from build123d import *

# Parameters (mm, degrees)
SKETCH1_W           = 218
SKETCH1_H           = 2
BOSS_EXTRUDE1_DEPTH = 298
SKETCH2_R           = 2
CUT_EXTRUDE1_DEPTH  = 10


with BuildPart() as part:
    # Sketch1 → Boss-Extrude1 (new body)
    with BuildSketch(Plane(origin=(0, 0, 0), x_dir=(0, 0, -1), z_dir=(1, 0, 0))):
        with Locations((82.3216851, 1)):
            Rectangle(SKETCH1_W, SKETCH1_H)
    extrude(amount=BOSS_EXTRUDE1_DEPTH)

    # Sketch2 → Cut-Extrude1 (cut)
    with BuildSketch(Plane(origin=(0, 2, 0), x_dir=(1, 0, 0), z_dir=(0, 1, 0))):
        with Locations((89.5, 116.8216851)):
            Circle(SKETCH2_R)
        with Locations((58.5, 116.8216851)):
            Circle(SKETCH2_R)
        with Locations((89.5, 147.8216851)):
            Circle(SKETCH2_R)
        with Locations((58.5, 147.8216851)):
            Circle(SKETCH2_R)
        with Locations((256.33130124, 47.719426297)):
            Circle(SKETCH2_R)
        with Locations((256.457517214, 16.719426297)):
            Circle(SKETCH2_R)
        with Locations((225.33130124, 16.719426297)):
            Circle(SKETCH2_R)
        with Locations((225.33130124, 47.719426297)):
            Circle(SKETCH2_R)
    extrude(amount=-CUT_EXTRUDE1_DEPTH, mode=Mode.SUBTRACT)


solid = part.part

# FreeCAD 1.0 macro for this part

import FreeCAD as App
import Part
import Sketcher
from FreeCAD import Vector
Q = App.Units.Quantity


def add_polygon(sketch, points):
    """Adds a closed chain of lines whose ends are joined by coincident constraints."""
    first, n = sketch.GeometryCount, len(points)
    for a, b in zip(points, points[1:] + points[:1]):
        sketch.addGeometry(Part.LineSegment(App.Vector(*a, 0), App.Vector(*b, 0)), False)
    for i in range(n):
        sketch.addConstraint(Sketcher.Constraint("Coincident", first + i, 2, first + (i + 1) % n, 1))

doc = App.newDocument("Part")
params = doc.addObject("Spreadsheet::Sheet", "Params")
for row, (alias, value) in enumerate([
    ("sketch1_width", "2 mm"),
    ("sketch1_height", "218 mm"),
    ("pad1_length", "298 mm"),
    ("sketch2_diameter", "4 mm"),
    ("pocket1_length", "10 mm"),
], start=1):
    params.set(f"A{row}", alias)
    params.set(f"B{row}", "=" + value)
    params.setAlias(f"B{row}", alias)

body = doc.addObject("PartDesign::Body", "Body")

sketch1 = body.newObject("Sketcher::SketchObject", "Sketch")
sketch1.AttachmentSupport = (doc.getObject("YZ_Plane"), [""])
sketch1.MapMode = "FlatFace"
add_polygon(sketch1, [(2, 26.7), (0, 26.7), (0, -191.3), (2, -191.3)])
sketch1.addConstraint([
    Sketcher.Constraint("Horizontal", 0),
    Sketcher.Constraint("Vertical", 1),
    Sketcher.Constraint("Horizontal", 2),
    Sketcher.Constraint("Vertical", 3),
    Sketcher.Constraint("PointOnObject", 0, 2, -2),
    Sketcher.Constraint("DistanceX", 0, 2, 0, 1, Q("2 mm")),
    Sketcher.Constraint("DistanceY", 1, 2, 1, 1, Q("218 mm")),
    Sketcher.Constraint("DistanceY", -1, 1, 0, 2, Q("26.678315 mm")),
])
sketch1.setExpression("Constraints[9]", "Params.sketch1_width")
sketch1.setExpression("Constraints[10]", "Params.sketch1_height")
pad1 = body.newObject("PartDesign::Pad", "Pad")
pad1.Profile = sketch1
pad1.setExpression("Length", "Params.pad1_length")

sketch2 = body.newObject("Sketcher::SketchObject", "Sketch001")
sketch2.AttachmentSupport = (doc.getObject("XZ_Plane"), [""])
sketch2.MapMode = "FlatFace"
sketch2.AttachmentOffset = App.Placement(Vector(0, 0, -2), App.Rotation())
sketch2.addGeometry([
    Part.Circle(Vector(89.5, -116.8, 0), Vector(0, 0, 1), 2),
    Part.Circle(Vector(58.5, -116.8, 0), Vector(0, 0, 1), 2),
    Part.Circle(Vector(89.5, -147.8, 0), Vector(0, 0, 1), 2),
    Part.Circle(Vector(58.5, -147.8, 0), Vector(0, 0, 1), 2),
    Part.Circle(Vector(256.3, -47.7, 0), Vector(0, 0, 1), 2),
    Part.Circle(Vector(256.5, -16.7, 0), Vector(0, 0, 1), 2),
    Part.Circle(Vector(225.3, -16.7, 0), Vector(0, 0, 1), 2),
    Part.Circle(Vector(225.3, -47.7, 0), Vector(0, 0, 1), 2),
], False)
sketch2.addConstraint([
    Sketcher.Constraint("Equal", 0, 1),
    Sketcher.Constraint("Equal", 1, 2),
    Sketcher.Constraint("Equal", 2, 3),
    Sketcher.Constraint("Equal", 3, 4),
    Sketcher.Constraint("Equal", 4, 5),
    Sketcher.Constraint("Equal", 5, 6),
    Sketcher.Constraint("Equal", 6, 7),
    Sketcher.Constraint("Horizontal", 0, 3, 1, 3),
    Sketcher.Constraint("Horizontal", 2, 3, 3, 3),
    Sketcher.Constraint("Horizontal", 5, 3, 6, 3),
    Sketcher.Constraint("Horizontal", 4, 3, 7, 3),
    Sketcher.Constraint("Vertical", 0, 3, 2, 3),
    Sketcher.Constraint("Vertical", 1, 3, 3, 3),
    Sketcher.Constraint("Vertical", 6, 3, 7, 3),
    Sketcher.Constraint("Diameter", 0, Q("4 mm")),
    Sketcher.Constraint("DistanceX", 1, 3, 0, 3, Q("31 mm")),
    Sketcher.Constraint("DistanceY", 2, 3, 0, 3, Q("31 mm")),
    Sketcher.Constraint("DistanceY", 4, 3, 5, 3, Q("31 mm")),
    Sketcher.Constraint("DistanceX", 6, 3, 4, 3, Q("31 mm")),
    Sketcher.Constraint("DistanceX", -1, 1, 0, 3, Q("89.5 mm")),
    Sketcher.Constraint("DistanceX", -1, 1, 4, 3, Q("256.331301 mm")),
    Sketcher.Constraint("DistanceY", 0, 3, 4, 3, Q("69.102259 mm")),
    Sketcher.Constraint("DistanceY", 0, 3, -1, 1, Q("116.821685 mm")),
    Sketcher.Constraint("DistanceX", -1, 1, 5, 3, Q("256.457517 mm")),
])
sketch2.setExpression("Constraints[14]", "Params.sketch2_diameter")
pocket1 = body.newObject("PartDesign::Pocket", "Pocket")
pocket1.Profile = sketch2
pocket1.setExpression("Length", "Params.pocket1_length")
pocket1.Reversed = True

doc.recompute()
